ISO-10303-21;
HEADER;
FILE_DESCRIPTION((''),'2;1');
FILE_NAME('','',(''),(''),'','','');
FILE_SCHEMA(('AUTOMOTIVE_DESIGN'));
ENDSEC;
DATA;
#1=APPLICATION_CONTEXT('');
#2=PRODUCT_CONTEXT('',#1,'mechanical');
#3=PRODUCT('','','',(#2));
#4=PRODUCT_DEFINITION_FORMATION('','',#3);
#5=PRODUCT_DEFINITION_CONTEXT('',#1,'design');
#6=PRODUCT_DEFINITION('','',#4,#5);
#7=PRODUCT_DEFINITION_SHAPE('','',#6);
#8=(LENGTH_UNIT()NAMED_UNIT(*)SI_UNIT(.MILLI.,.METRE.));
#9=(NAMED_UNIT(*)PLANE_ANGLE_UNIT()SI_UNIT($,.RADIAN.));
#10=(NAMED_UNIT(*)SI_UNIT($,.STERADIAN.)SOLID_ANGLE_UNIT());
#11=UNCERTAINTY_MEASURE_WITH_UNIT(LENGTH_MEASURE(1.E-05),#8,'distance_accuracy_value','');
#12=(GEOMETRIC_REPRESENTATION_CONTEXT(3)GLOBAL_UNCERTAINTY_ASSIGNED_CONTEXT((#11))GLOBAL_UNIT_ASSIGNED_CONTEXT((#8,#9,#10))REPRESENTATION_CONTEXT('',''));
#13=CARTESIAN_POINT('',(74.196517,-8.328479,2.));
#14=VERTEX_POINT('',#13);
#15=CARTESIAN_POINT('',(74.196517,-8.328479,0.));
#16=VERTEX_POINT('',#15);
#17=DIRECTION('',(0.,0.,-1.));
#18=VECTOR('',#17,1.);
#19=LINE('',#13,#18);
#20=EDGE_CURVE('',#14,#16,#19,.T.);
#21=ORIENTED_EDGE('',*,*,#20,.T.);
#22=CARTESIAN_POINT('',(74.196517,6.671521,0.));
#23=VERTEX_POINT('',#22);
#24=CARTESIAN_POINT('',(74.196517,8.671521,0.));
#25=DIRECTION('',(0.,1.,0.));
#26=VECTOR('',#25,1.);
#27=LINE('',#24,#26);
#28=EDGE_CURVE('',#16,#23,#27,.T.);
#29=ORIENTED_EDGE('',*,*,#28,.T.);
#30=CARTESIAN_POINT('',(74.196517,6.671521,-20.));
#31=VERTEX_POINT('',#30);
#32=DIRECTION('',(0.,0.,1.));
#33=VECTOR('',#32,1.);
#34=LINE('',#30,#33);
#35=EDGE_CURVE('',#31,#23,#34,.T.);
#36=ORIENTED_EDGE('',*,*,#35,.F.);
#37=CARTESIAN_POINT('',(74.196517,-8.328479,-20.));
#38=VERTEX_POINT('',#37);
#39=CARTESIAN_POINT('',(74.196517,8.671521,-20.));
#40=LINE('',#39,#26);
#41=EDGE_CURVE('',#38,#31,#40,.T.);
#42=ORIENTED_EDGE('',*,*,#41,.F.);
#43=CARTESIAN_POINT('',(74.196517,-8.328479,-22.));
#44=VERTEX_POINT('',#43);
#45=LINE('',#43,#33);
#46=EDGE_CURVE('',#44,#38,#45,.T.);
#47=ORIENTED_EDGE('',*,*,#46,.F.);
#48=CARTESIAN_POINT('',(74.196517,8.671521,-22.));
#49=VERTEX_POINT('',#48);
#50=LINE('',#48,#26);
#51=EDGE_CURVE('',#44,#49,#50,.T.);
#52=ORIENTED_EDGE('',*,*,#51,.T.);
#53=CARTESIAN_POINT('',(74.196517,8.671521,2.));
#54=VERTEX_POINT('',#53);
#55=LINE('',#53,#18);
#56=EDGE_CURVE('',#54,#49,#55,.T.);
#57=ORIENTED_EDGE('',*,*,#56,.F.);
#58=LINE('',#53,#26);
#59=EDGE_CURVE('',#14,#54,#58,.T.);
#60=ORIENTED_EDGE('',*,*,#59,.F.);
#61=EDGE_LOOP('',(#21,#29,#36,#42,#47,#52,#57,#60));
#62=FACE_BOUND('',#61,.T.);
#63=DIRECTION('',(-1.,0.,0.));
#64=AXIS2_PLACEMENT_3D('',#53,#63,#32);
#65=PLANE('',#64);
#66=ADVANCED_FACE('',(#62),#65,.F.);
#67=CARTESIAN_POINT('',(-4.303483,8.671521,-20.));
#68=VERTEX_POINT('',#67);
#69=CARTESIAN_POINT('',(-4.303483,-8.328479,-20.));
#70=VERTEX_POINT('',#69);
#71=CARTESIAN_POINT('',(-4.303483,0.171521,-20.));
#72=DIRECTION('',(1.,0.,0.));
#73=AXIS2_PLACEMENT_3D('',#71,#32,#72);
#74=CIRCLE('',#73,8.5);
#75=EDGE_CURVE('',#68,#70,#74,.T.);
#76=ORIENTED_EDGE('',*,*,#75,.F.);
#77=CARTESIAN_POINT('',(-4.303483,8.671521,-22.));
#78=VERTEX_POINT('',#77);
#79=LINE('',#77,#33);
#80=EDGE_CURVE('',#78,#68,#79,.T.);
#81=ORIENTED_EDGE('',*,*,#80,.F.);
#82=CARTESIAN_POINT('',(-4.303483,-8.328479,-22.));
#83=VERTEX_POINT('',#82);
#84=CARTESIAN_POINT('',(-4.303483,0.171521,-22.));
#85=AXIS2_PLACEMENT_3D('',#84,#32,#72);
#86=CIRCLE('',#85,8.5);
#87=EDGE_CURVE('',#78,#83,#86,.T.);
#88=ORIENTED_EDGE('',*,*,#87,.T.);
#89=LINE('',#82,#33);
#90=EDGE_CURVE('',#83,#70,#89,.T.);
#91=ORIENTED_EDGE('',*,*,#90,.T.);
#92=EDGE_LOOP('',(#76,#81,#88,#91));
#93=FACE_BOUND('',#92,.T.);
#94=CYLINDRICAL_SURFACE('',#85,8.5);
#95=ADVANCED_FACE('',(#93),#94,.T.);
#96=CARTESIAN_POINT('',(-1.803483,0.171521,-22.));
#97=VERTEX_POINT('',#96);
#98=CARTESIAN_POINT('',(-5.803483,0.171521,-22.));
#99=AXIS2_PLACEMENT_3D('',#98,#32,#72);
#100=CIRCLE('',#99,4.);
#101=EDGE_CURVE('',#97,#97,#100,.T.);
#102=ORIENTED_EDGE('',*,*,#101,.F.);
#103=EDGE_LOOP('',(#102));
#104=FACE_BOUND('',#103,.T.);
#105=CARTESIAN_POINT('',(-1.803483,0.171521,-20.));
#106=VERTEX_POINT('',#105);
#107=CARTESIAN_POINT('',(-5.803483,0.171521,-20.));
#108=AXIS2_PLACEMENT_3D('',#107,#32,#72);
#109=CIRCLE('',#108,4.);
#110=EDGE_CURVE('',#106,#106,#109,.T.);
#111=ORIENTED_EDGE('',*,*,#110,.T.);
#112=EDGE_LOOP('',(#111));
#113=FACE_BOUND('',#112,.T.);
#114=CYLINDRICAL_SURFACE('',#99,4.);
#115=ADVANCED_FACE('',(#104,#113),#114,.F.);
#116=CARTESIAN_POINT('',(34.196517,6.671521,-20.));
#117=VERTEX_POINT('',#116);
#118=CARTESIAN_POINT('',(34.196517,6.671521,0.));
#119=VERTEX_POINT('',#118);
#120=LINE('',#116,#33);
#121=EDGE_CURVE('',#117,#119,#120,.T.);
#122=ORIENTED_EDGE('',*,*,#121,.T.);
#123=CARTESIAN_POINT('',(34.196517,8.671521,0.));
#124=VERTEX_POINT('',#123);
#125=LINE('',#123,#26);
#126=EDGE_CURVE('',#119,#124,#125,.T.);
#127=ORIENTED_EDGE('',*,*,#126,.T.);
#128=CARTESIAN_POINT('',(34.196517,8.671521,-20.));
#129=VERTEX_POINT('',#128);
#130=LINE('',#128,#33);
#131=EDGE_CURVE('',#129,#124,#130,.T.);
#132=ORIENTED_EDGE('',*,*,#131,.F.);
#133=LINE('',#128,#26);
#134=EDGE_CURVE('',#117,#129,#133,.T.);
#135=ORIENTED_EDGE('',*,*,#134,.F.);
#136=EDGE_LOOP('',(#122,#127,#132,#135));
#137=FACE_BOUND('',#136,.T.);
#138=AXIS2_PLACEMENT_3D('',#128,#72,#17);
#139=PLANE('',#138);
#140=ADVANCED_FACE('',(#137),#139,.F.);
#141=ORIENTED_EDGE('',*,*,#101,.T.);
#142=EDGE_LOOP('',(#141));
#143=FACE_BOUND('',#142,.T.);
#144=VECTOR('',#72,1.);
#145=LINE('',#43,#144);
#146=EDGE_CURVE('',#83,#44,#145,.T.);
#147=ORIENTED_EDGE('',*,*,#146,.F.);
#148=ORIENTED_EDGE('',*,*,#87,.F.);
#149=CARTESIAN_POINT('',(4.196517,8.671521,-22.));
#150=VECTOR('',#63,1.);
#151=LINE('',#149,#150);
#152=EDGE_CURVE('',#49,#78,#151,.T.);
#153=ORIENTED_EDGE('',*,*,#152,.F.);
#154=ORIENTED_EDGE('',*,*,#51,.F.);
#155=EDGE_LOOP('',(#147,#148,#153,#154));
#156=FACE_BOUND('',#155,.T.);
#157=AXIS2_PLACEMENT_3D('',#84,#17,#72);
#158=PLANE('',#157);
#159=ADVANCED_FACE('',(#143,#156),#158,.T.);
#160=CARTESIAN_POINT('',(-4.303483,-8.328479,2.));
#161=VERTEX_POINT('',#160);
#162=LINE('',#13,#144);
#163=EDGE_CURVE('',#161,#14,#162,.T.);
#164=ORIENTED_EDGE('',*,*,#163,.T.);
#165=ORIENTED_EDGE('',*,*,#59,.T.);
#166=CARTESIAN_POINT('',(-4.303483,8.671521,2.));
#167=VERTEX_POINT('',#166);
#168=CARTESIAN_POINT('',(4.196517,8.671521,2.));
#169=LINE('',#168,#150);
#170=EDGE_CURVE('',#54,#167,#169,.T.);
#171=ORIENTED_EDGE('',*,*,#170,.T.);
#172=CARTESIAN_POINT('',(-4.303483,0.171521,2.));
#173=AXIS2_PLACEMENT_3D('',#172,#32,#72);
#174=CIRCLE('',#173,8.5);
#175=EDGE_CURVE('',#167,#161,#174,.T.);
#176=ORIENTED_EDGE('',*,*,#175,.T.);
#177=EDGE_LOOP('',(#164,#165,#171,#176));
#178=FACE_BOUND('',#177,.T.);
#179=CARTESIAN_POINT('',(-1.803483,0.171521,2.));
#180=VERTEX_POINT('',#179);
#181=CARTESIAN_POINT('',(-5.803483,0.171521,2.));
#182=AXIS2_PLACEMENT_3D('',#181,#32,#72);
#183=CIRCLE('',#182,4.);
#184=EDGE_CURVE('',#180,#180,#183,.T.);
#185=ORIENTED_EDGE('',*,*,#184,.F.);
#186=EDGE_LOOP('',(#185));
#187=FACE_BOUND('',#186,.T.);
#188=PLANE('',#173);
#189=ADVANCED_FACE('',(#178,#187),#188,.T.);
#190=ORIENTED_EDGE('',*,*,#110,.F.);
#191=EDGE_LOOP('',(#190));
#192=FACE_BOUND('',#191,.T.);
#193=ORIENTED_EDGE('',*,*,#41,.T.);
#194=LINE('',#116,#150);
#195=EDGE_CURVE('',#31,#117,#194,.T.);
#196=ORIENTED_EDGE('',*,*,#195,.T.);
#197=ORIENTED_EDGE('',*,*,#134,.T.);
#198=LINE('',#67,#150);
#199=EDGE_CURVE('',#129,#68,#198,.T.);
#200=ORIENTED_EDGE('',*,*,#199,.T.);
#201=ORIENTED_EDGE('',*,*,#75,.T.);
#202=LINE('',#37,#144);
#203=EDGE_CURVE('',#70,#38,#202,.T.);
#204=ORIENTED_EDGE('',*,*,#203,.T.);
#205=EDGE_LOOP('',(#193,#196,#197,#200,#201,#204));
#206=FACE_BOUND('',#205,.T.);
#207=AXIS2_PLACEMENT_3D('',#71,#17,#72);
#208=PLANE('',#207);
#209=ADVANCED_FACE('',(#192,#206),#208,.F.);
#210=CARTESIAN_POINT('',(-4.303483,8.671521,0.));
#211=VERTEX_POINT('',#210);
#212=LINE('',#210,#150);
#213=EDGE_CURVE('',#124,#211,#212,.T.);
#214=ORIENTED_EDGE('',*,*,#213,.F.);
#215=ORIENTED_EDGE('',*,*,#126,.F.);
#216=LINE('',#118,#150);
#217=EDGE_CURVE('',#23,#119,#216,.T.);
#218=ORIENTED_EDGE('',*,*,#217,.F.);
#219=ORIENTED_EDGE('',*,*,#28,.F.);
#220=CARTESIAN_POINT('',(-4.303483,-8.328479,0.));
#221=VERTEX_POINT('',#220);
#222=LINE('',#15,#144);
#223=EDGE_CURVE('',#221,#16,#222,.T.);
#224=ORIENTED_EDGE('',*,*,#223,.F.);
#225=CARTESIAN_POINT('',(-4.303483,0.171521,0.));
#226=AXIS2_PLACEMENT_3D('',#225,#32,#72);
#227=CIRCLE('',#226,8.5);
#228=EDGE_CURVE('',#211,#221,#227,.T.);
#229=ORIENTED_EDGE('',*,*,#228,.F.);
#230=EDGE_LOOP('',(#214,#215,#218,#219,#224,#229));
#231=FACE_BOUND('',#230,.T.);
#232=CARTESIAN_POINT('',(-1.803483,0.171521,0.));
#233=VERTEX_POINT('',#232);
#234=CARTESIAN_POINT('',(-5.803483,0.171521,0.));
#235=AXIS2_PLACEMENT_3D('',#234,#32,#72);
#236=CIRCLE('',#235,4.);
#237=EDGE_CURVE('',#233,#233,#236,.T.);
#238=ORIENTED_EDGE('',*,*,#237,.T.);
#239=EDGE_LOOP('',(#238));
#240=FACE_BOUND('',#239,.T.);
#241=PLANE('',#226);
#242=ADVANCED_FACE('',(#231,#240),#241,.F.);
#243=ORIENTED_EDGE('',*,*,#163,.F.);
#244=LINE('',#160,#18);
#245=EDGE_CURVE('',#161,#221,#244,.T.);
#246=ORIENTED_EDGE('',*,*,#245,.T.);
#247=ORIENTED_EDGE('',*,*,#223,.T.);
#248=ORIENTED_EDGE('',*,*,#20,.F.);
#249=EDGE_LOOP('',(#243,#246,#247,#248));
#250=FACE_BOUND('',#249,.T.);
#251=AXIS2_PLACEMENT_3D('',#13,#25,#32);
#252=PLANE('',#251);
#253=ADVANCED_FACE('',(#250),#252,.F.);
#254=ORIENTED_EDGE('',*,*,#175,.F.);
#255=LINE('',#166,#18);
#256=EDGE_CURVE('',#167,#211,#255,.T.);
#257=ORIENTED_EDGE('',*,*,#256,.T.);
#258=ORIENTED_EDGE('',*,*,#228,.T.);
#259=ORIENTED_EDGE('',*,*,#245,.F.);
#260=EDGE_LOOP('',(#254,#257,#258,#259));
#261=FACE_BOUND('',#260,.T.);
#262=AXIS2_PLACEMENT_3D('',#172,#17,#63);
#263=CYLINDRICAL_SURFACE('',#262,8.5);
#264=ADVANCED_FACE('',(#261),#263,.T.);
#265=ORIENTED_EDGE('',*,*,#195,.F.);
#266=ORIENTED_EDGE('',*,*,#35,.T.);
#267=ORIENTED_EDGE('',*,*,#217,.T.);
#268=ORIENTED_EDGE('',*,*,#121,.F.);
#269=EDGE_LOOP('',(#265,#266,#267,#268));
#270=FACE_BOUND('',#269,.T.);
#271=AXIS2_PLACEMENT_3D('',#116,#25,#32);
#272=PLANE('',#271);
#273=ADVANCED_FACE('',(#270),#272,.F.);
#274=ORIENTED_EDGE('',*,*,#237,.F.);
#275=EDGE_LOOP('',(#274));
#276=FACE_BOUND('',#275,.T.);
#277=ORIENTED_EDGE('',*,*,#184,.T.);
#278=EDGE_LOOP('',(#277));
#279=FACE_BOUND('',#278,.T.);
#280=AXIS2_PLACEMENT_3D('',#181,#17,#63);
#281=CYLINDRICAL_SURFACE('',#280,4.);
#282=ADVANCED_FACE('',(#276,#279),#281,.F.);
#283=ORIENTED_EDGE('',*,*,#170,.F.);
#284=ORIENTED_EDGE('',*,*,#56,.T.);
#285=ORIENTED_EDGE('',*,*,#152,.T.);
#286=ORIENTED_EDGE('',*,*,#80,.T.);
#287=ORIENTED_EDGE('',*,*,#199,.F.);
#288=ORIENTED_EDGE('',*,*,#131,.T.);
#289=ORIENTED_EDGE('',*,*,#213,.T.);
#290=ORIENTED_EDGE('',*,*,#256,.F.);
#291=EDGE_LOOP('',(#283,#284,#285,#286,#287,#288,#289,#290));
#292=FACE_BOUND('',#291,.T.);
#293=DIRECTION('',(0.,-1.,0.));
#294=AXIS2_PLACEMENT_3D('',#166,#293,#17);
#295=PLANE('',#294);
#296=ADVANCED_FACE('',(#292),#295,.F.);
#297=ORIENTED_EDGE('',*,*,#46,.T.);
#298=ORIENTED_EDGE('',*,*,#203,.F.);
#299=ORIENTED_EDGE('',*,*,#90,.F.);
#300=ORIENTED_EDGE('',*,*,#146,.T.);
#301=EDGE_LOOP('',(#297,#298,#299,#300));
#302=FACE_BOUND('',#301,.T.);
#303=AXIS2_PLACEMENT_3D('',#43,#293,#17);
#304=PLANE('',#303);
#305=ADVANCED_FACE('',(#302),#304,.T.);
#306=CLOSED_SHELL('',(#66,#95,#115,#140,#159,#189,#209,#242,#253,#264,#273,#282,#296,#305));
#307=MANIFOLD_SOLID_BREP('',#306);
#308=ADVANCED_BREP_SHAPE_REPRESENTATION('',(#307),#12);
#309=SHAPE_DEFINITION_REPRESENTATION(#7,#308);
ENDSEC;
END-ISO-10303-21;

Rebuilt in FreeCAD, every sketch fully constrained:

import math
import FreeCAD as App
import Part
import Sketcher

V = App.Vector

doc = App.newDocument("Part")
params = doc.addObject("Spreadsheet::Sheet", "Params")
for row, (alias, value) in enumerate([
    ("sketch1_diameter", "8 mm"),
    ("sketch1_radius", "8.5 mm"),
    ("sketch1_width", "78.5 mm"),
    ("pad1_length", "2 mm"),
    ("sketch2_width", "40 mm"),
    ("sketch2_height", "2 mm"),
    ("pad2_length", "20 mm"),
], start=1):
    params.set(f"A{row}", alias)
    params.set(f"B{row}", "=" + value)
    params.setAlias(f"B{row}", alias)

body = doc.addObject("PartDesign::Body", "Body")

# Sketch on XY plane
sketch1 = body.newObject("Sketcher::SketchObject", "Sketch")
sketch1.AttachmentSupport = (doc.getObject("XY_Plane"), [""])
sketch1.MapMode = "FlatFace"
sketch1.addGeometry(Part.LineSegment(V(74.2, 8.7, 0), V(-4.3, 8.7, 0)), False)
sketch1.addGeometry(Part.ArcOfCircle(Part.Circle(V(-4.3, 0.2, 0), V(0, 0, 1), 8.5), math.radians(90), math.radians(270)), False)
sketch1.addGeometry(Part.LineSegment(V(-4.3, -8.3, 0), V(74.2, -8.3, 0)), False)
sketch1.addGeometry(Part.LineSegment(V(74.2, -8.3, 0), V(74.2, 8.7, 0)), False)
sketch1.addGeometry(Part.Circle(V(-5.8, 0.2, 0), V(0, 0, 1), 4), False)
sketch1.addConstraint(Sketcher.Constraint("Tangent", 0, 2, 1, 1))
sketch1.addConstraint(Sketcher.Constraint("Tangent", 1, 2, 2, 1))
sketch1.addConstraint(Sketcher.Constraint("Coincident", 2, 2, 3, 1))
sketch1.addConstraint(Sketcher.Constraint("Coincident", 3, 2, 0, 1))
sketch1.addConstraint(Sketcher.Constraint("Horizontal", 0))
sketch1.addConstraint(Sketcher.Constraint("Horizontal", 2))
sketch1.addConstraint(Sketcher.Constraint("Vertical", 3))
sketch1.addConstraint(Sketcher.Constraint("Horizontal", 1, 3, 4, 3))
sketch1.addConstraint(Sketcher.Constraint("Diameter", 4, 8.0))
sketch1.addConstraint(Sketcher.Constraint("Radius", 1, 8.5))
sketch1.addConstraint(Sketcher.Constraint("DistanceX", 0, 2, 0, 1, 78.5))
sketch1.addConstraint(Sketcher.Constraint("DistanceX", 4, 3, 2, 2, 80.0))
sketch1.addConstraint(Sketcher.Constraint("DistanceY", -1, 1, 1, 3, 0.171521))
sketch1.addConstraint(Sketcher.Constraint("DistanceX", 1, 3, -1, 1, 4.303483))
sketch1.setExpression("Constraints[8]", "Params.sketch1_diameter")
sketch1.setExpression("Constraints[9]", "Params.sketch1_radius")
sketch1.setExpression("Constraints[10]", "Params.sketch1_width")
pad1 = body.newObject("PartDesign::Pad", "Pad")
pad1.Profile = sketch1
pad1.setExpression("Length", "Params.pad1_length")

# Sketch on XY plane
sketch2 = body.newObject("Sketcher::SketchObject", "Sketch001")
sketch2.AttachmentSupport = (doc.getObject("XY_Plane"), [""])
sketch2.MapMode = "FlatFace"
sketch2.addGeometry(Part.LineSegment(V(74.2, 8.7, 0), V(74.2, 6.7, 0)), False)
sketch2.addGeometry(Part.LineSegment(V(74.2, 6.7, 0), V(34.2, 6.7, 0)), False)
sketch2.addGeometry(Part.LineSegment(V(34.2, 6.7, 0), V(34.2, 8.7, 0)), False)
sketch2.addGeometry(Part.LineSegment(V(34.2, 8.7, 0), V(74.2, 8.7, 0)), False)
sketch2.addConstraint(Sketcher.Constraint("Coincident", 0, 2, 1, 1))
sketch2.addConstraint(Sketcher.Constraint("Coincident", 1, 2, 2, 1))
sketch2.addConstraint(Sketcher.Constraint("Coincident", 2, 2, 3, 1))
sketch2.addConstraint(Sketcher.Constraint("Coincident", 3, 2, 0, 1))
sketch2.addConstraint(Sketcher.Constraint("Vertical", 0))
sketch2.addConstraint(Sketcher.Constraint("Horizontal", 1))
sketch2.addConstraint(Sketcher.Constraint("Vertical", 2))
sketch2.addConstraint(Sketcher.Constraint("Horizontal", 3))
sketch2.addConstraint(Sketcher.Constraint("DistanceX", 1, 2, 1, 1, 40.0))
sketch2.addConstraint(Sketcher.Constraint("DistanceY", 0, 2, 0, 1, 2.0))
sketch2.addConstraint(Sketcher.Constraint("DistanceY", -1, 1, 0, 2, 6.671521))
sketch2.addConstraint(Sketcher.Constraint("DistanceX", -1, 1, 0, 2, 74.196517))
sketch2.setExpression("Constraints[8]", "Params.sketch2_width")
sketch2.setExpression("Constraints[9]", "Params.sketch2_height")
pad2 = body.newObject("PartDesign::Pad", "Pad001")
pad2.Profile = sketch2
pad2.setExpression("Length", "Params.pad2_length")
pad2.Reversed = True
doc.recompute()

datumplane = body.newObject("PartDesign::Plane", "DatumPlane")
datumplane.AttachmentSupport = (doc.getObject("XY_Plane"), [""])
datumplane.MapMode = "FlatFace"
datumplane.AttachmentOffset = App.Placement(V(0, 0, -10), App.Rotation())
mirrored = body.newObject("PartDesign::Mirrored", "Mirrored")
mirrored.Originals = [pad1]
mirrored.MirrorPlane = (datumplane, [""])
body.Tip = mirrored

doc.recompute()
